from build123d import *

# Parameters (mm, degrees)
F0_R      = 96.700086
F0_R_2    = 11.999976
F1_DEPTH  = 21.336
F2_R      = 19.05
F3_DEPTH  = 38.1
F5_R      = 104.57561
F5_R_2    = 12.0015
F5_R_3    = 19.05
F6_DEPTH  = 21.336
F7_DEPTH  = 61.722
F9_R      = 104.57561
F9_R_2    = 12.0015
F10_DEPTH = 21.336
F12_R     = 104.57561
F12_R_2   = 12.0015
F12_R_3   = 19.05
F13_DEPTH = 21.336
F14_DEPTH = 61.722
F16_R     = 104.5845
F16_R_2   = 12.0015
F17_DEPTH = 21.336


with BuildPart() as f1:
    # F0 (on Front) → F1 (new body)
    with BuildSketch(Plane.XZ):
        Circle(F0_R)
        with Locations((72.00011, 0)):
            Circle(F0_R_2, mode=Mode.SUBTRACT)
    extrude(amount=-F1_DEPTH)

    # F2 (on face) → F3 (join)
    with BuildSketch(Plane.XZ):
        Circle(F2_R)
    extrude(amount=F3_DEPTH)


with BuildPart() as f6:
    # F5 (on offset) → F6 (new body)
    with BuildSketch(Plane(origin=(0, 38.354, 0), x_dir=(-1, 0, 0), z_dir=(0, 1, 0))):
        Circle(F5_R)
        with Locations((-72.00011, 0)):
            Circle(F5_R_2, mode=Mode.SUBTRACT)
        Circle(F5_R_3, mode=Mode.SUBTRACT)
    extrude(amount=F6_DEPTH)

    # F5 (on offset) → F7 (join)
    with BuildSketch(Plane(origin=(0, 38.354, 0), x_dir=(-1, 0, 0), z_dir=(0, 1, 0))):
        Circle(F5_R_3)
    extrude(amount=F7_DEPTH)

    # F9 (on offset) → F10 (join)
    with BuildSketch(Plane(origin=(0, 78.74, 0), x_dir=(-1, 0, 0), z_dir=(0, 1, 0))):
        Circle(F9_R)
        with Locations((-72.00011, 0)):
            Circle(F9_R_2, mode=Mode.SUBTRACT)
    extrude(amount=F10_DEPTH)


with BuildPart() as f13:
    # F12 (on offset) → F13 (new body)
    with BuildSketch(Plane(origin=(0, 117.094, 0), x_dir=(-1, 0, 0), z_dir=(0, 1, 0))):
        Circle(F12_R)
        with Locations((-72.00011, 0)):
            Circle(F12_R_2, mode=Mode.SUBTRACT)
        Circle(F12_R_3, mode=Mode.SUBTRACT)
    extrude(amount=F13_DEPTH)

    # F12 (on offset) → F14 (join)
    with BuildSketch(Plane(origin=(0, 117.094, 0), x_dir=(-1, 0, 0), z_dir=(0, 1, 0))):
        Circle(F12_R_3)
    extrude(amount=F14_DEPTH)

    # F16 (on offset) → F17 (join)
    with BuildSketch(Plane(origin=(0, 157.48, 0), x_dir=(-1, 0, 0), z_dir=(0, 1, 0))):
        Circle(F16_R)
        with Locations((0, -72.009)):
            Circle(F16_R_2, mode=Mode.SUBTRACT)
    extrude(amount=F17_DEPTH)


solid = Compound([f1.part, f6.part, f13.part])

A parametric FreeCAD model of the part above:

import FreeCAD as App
import Part
import Sketcher

V = App.Vector
Q = App.Units.Quantity

doc = App.newDocument("Part")
params = doc.addObject("Spreadsheet::Sheet", "Params")
for row, (alias, value) in enumerate([
    ("pad1_length", "0.84 in"),
    ("sketch2_diameter", "1.5 in"),
    ("pad2_length", "1.5 in"),
    ("sketch3_diameter", "1.5 in"),
    ("sketch3_diameter2", "0.945 in"),
    ("pad3_length", "0.84 in"),
    ("sketch4_diameter", "1.5 in"),
    ("pad4_length", "2.43 in"),
    ("sketch5_diameter", "0.945 in"),
    ("pad5_length", "0.84 in"),
    ("sketch6_diameter", "1.5 in"),
    ("sketch6_diameter2", "0.945 in"),
    ("pad6_length", "0.84 in"),
    ("sketch7_diameter", "1.5 in"),
    ("pad7_length", "2.43 in"),
    ("sketch8_diameter", "8.235 in"),
    ("sketch8_diameter2", "0.945 in"),
    ("pad8_length", "0.84 in"),
], start=1):
    params.set(f"A{row}", alias)
    params.set(f"B{row}", "=" + value)
    params.setAlias(f"B{row}", alias)

body = doc.addObject("PartDesign::Body", "Body")

# Sketch on XZ plane
sketch1 = body.newObject("Sketcher::SketchObject", "Sketch")
sketch1.AttachmentSupport = (doc.getObject("XZ_Plane"), [""])
sketch1.MapMode = "FlatFace"
sketch1.addGeometry([
    Part.Circle(V(0, 0, 0), V(0, 0, 1), 97),
    Part.Circle(V(72, 0, 0), V(0, 0, 1), 12),
], False)
sketch1.addConstraint([
    Sketcher.Constraint("Coincident", 0, 3, -1, 1),
    Sketcher.Constraint("PointOnObject", 1, 3, -1),
    Sketcher.Constraint("Diameter", 0, 193.400172),
    Sketcher.Constraint("Diameter", 1, 23.999952),
    Sketcher.Constraint("DistanceX", -1, 1, 1, 3, 72.00011),
])
pad1 = body.newObject("PartDesign::Pad", "Pad")
pad1.Profile = sketch1
pad1.setExpression("Length", "Params.pad1_length")
pad1.Reversed = True

# Sketch on XZ plane
sketch2 = body.newObject("Sketcher::SketchObject", "Sketch001")
sketch2.AttachmentSupport = (doc.getObject("XZ_Plane"), [""])
sketch2.MapMode = "FlatFace"
sketch2.addGeometry(Part.Circle(V(0, 0, 0), V(0, 0, 1), 19), False)
sketch2.addConstraint([
    Sketcher.Constraint("Coincident", 0, 3, -1, 1),
    Sketcher.Constraint("Diameter", 0, Q("1.5 in")),
])
sketch2.setExpression("Constraints[1]", "Params.sketch2_diameter")
pad2 = body.newObject("PartDesign::Pad", "Pad001")
pad2.Profile = sketch2
pad2.setExpression("Length", "Params.pad2_length")
body2 = doc.addObject("PartDesign::Body", "Body001")

# Sketch on XZ plane
sketch3 = body2.newObject("Sketcher::SketchObject", "Sketch002")
sketch3.AttachmentSupport = (doc.getObject("XZ_Plane001"), [""])
sketch3.MapMode = "FlatFace"
sketch3.AttachmentOffset = App.Placement(V(0, 0, -1.51 * 25.4), App.Rotation())
sketch3.addGeometry([
    Part.Circle(V(0, 0, 0), V(0, 0, 1), 105),
    Part.Circle(V(72, 0, 0), V(0, 0, 1), 12),
    Part.Circle(V(0, 0, 0), V(0, 0, 1), 19),
], False)
sketch3.addConstraint([
    Sketcher.Constraint("Coincident", 0, 3, -1, 1),
    Sketcher.Constraint("Coincident", 2, 3, -1, 1),
    Sketcher.Constraint("PointOnObject", 1, 3, -1),
    Sketcher.Constraint("Diameter", 2, Q("1.5 in")),
    Sketcher.Constraint("Diameter", 1, Q("0.945 in")),
    Sketcher.Constraint("Diameter", 0, Q("8.2343 in")),
    Sketcher.Constraint("DistanceX", -1, 1, 1, 3, 72.00011),
])
sketch3.setExpression("Constraints[3]", "Params.sketch3_diameter")
sketch3.setExpression("Constraints[4]", "Params.sketch3_diameter2")
pad3 = body2.newObject("PartDesign::Pad", "Pad002")
pad3.Profile = sketch3
pad3.setExpression("Length", "Params.pad3_length")
pad3.Reversed = True

# Sketch on XZ plane
sketch4 = body2.newObject("Sketcher::SketchObject", "Sketch003")
sketch4.AttachmentSupport = (doc.getObject("XZ_Plane001"), [""])
sketch4.MapMode = "FlatFace"
sketch4.AttachmentOffset = App.Placement(V(0, 0, -1.51 * 25.4), App.Rotation())
sketch4.addGeometry(Part.Circle(V(0, 0, 0), V(0, 0, 1), 19), False)
sketch4.addConstraint([
    Sketcher.Constraint("Coincident", 0, 3, -1, 1),
    Sketcher.Constraint("Diameter", 0, Q("1.5 in")),
])
sketch4.setExpression("Constraints[1]", "Params.sketch4_diameter")
pad4 = body2.newObject("PartDesign::Pad", "Pad003")
pad4.Profile = sketch4
pad4.setExpression("Length", "Params.pad4_length")
pad4.Reversed = True

# Sketch on XZ plane
sketch5 = body2.newObject("Sketcher::SketchObject", "Sketch004")
sketch5.AttachmentSupport = (doc.getObject("XZ_Plane001"), [""])
sketch5.MapMode = "FlatFace"
sketch5.AttachmentOffset = App.Placement(V(0, 0, -3.1 * 25.4), App.Rotation())
sketch5.addGeometry([
    Part.Circle(V(0, 0, 0), V(0, 0, 1), 105),
    Part.Circle(V(72, 0, 0), V(0, 0, 1), 12),
], False)
sketch5.addConstraint([
    Sketcher.Constraint("Coincident", 0, 3, -1, 1),
    Sketcher.Constraint("PointOnObject", 1, 3, -1),
    Sketcher.Constraint("Diameter", 1, Q("0.945 in")),
    Sketcher.Constraint("Diameter", 0, Q("8.2343 in")),
    Sketcher.Constraint("DistanceX", -1, 1, 1, 3, 72.00011),
])
sketch5.setExpression("Constraints[2]", "Params.sketch5_diameter")
pad5 = body2.newObject("PartDesign::Pad", "Pad004")
pad5.Profile = sketch5
pad5.setExpression("Length", "Params.pad5_length")
pad5.Reversed = True
body3 = doc.addObject("PartDesign::Body", "Body002")

# Sketch on XZ plane
sketch6 = body3.newObject("Sketcher::SketchObject", "Sketch005")
sketch6.AttachmentSupport = (doc.getObject("XZ_Plane002"), [""])
sketch6.MapMode = "FlatFace"
sketch6.AttachmentOffset = App.Placement(V(0, 0, -4.61 * 25.4), App.Rotation())
sketch6.addGeometry([
    Part.Circle(V(0, 0, 0), V(0, 0, 1), 105),
    Part.Circle(V(72, 0, 0), V(0, 0, 1), 12),
    Part.Circle(V(0, 0, 0), V(0, 0, 1), 19),
], False)
sketch6.addConstraint([
    Sketcher.Constraint("Coincident", 0, 3, -1, 1),
    Sketcher.Constraint("Coincident", 2, 3, -1, 1),
    Sketcher.Constraint("PointOnObject", 1, 3, -1),
    Sketcher.Constraint("Diameter", 2, Q("1.5 in")),
    Sketcher.Constraint("Diameter", 1, Q("0.945 in")),
    Sketcher.Constraint("Diameter", 0, Q("8.2343 in")),
    Sketcher.Constraint("DistanceX", -1, 1, 1, 3, 72.00011),
])
sketch6.setExpression("Constraints[3]", "Params.sketch6_diameter")
sketch6.setExpression("Constraints[4]", "Params.sketch6_diameter2")
pad6 = body3.newObject("PartDesign::Pad", "Pad005")
pad6.Profile = sketch6
pad6.setExpression("Length", "Params.pad6_length")
pad6.Reversed = True

# Sketch on XZ plane
sketch7 = body3.newObject("Sketcher::SketchObject", "Sketch006")
sketch7.AttachmentSupport = (doc.getObject("XZ_Plane002"), [""])
sketch7.MapMode = "FlatFace"
sketch7.AttachmentOffset = App.Placement(V(0, 0, -4.61 * 25.4), App.Rotation())
sketch7.addGeometry(Part.Circle(V(0, 0, 0), V(0, 0, 1), 19), False)
sketch7.addConstraint([
    Sketcher.Constraint("Coincident", 0, 3, -1, 1),
    Sketcher.Constraint("Diameter", 0, Q("1.5 in")),
])
sketch7.setExpression("Constraints[1]", "Params.sketch7_diameter")
pad7 = body3.newObject("PartDesign::Pad", "Pad006")
pad7.Profile = sketch7
pad7.setExpression("Length", "Params.pad7_length")
pad7.Reversed = True

# Sketch on XZ plane
sketch8 = body3.newObject("Sketcher::SketchObject", "Sketch007")
sketch8.AttachmentSupport = (doc.getObject("XZ_Plane002"), [""])
sketch8.MapMode = "FlatFace"
sketch8.AttachmentOffset = App.Placement(V(0, 0, -6.2 * 25.4), App.Rotation())
sketch8.addGeometry([
    Part.Circle(V(0, 0, 0), V(0, 0, 1), 105),
    Part.Circle(V(0, -72, 0), V(0, 0, 1), 12),
], False)
sketch8.addConstraint([
    Sketcher.Constraint("Coincident", 0, 3, -1, 1),
    Sketcher.Constraint("PointOnObject", 1, 3, -2),
    Sketcher.Constraint("Diameter", 0, Q("8.235 in")),
    Sketcher.Constraint("Diameter", 1, Q("0.945 in")),
    Sketcher.Constraint("DistanceY", 1, 3, -1, 1, Q("2.835 in")),
])
sketch8.setExpression("Constraints[2]", "Params.sketch8_diameter")
sketch8.setExpression("Constraints[3]", "Params.sketch8_diameter2")
pad8 = body3.newObject("PartDesign::Pad", "Pad007")
pad8.Profile = sketch8
pad8.setExpression("Length", "Params.pad8_length")
pad8.Reversed = True

doc.recompute()
